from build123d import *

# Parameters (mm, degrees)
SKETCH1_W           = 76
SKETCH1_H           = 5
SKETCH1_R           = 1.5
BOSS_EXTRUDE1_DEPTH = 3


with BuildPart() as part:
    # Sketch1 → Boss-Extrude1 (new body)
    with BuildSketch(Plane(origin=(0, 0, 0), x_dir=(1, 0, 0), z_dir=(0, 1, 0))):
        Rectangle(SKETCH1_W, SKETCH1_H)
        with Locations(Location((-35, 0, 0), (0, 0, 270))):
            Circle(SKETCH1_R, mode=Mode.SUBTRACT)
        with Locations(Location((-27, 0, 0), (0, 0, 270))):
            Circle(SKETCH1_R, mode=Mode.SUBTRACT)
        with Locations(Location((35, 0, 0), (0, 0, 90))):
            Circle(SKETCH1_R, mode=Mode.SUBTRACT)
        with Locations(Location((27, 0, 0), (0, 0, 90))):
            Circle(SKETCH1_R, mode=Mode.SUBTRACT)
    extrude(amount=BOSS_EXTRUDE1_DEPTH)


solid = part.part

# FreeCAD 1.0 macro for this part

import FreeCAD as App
import Part
import Sketcher

V = App.Vector

doc = App.newDocument("Part")
body = doc.addObject("PartDesign::Body", "Body")

# Sketch on XZ plane
sketch1 = body.newObject("Sketcher::SketchObject", "Sketch")
sketch1.AttachmentSupport = (doc.getObject("XZ_Plane"), [""])
sketch1.MapMode = "FlatFace"
sketch1.addGeometry([
    Part.LineSegment(V(-38, -2.5, 0), V(-38, 2.5, 0)),  # 0
    Part.LineSegment(V(-38, 2.5, 0), V(38, 2.5, 0)),  # 1
    Part.LineSegment(V(38, 2.5, 0), V(38, -2.5, 0)),  # 2
    Part.LineSegment(V(38, -2.5, 0), V(-38, -2.5, 0)),  # 3
    Part.Circle(V(-35, 0, 0), V(0, 0, 1), 1.5),  # 4
    Part.Circle(V(-27, 0, 0), V(0, 0, 1), 1.5),  # 5
    Part.Circle(V(27, 0, 0), V(0, 0, 1), 1.5),  # 6
    Part.Circle(V(35, 0, 0), V(0, 0, 1), 1.5),  # 7
], False)
sketch1.addConstraint([
    Sketcher.Constraint("Coincident", 0, 2, 1, 1),
    Sketcher.Constraint("Coincident", 1, 2, 2, 1),
    Sketcher.Constraint("Coincident", 2, 2, 3, 1),
    Sketcher.Constraint("Coincident", 3, 2, 0, 1),
    Sketcher.Constraint("Vertical", 0),
    Sketcher.Constraint("Horizontal", 1),
    Sketcher.Constraint("Vertical", 2),
    Sketcher.Constraint("Horizontal", 3),
    Sketcher.Constraint("Equal", 4, 5),
    Sketcher.Constraint("Equal", 5, 6),
    Sketcher.Constraint("Equal", 6, 7),
    Sketcher.Constraint("Symmetric", 5, 3, 6, 3, -1, 1),
    Sketcher.Constraint("Symmetric", 4, 3, 7, 3, -1, 1),
    Sketcher.Constraint("Symmetric", 0, 2, 2, 2, -1, 1),
    Sketcher.Constraint("PointOnObject", 4, 3, -1),
    Sketcher.Constraint("PointOnObject", 5, 3, -1),
    Sketcher.Constraint("Diameter", 4, 3.0),
    Sketcher.Constraint("DistanceX", 1, 1, 1, 2, 76.0),
    Sketcher.Constraint("DistanceY", 0, 1, 0, 2, 5.0),
    Sketcher.Constraint("DistanceX", 4, 3, -1, 1, 35.0),
    Sketcher.Constraint("DistanceX", 5, 3, -1, 1, 27.0),
])
pad1 = body.newObject("PartDesign::Pad", "Pad")
pad1.Profile = sketch1
pad1.Length = 3
pad1.Reversed = True

doc.recompute()
